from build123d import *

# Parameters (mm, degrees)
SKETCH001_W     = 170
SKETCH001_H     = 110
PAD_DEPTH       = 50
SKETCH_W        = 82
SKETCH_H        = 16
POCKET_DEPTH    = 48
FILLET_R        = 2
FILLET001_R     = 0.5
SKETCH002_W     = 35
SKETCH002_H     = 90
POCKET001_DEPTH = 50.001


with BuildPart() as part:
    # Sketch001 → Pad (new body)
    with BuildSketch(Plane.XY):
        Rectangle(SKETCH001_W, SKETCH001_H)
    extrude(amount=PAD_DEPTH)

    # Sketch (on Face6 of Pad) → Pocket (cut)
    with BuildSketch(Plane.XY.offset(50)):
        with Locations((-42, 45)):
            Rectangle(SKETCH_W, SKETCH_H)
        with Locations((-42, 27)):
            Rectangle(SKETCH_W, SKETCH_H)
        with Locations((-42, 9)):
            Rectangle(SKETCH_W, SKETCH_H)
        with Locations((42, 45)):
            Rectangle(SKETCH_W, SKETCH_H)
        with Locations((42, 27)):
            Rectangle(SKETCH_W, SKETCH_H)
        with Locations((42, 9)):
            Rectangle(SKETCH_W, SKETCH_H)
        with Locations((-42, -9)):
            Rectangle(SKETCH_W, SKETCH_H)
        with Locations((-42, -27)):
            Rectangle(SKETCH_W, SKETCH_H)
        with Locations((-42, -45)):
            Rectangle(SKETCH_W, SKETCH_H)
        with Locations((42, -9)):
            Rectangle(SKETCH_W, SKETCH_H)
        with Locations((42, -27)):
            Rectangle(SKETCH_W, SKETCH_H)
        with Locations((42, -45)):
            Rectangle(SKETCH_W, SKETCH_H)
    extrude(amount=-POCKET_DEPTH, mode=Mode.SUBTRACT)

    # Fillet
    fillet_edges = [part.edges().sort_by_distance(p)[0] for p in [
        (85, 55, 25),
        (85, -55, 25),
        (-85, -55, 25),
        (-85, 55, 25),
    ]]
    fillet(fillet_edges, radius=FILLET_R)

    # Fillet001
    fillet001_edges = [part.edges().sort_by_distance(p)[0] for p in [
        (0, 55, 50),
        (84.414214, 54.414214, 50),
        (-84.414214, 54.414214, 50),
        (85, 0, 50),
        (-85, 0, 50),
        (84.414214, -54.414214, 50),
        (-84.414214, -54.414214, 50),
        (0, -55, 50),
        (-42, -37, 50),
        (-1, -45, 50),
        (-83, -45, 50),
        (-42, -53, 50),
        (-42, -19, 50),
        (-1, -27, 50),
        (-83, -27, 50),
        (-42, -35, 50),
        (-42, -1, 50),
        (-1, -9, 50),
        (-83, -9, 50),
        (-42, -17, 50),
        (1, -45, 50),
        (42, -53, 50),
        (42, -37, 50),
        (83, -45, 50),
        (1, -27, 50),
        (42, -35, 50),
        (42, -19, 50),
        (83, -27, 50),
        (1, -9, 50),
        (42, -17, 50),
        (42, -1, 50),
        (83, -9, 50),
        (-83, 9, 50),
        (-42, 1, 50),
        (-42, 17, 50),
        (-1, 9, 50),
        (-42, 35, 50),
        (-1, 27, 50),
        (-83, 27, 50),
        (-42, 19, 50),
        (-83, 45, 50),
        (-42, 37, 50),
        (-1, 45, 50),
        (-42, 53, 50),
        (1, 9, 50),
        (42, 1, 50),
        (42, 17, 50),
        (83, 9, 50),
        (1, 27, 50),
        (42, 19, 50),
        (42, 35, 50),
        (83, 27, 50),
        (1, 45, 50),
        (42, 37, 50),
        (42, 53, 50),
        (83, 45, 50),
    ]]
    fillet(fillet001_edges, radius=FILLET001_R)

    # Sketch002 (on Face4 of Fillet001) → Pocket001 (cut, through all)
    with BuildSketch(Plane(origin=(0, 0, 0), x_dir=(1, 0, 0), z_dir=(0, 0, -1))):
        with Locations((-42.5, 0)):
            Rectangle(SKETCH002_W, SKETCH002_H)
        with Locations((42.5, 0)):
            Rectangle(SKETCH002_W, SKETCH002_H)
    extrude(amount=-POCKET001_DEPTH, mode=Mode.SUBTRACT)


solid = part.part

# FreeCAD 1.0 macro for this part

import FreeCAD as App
import Part
import Sketcher

V = App.Vector


def edges_at(feature, points):
    """Names of the edges that pass closest to the given points."""
    edges = feature.Shape.Edges
    near = lambda p: min(range(len(edges)), key=lambda i: edges[i].distToShape(Part.Vertex(*p))[0])
    return sorted({f"Edge{near(p) + 1}" for p in points})

doc = App.newDocument("Part")
body = doc.addObject("PartDesign::Body", "Body")

sketch1 = doc.addObject("Sketcher::SketchObject", "Sketch")
body.addObject(sketch1)
sketch1.AttachmentSupport = (doc.XY_Plane, [""])
sketch1.MapMode = "FlatFace"
sketch1.addGeometry([
    Part.LineSegment(V(-85, 55, 0), V(-85, -55, 0)),
    Part.LineSegment(V(-85, -55, 0), V(85, -55, 0)),
    Part.LineSegment(V(85, -55, 0), V(85, 55, 0)),
    Part.LineSegment(V(85, 55, 0), V(-85, 55, 0)),
], False)
sketch1.addConstraint([
    Sketcher.Constraint("Coincident", 0, 2, 1, 1),
    Sketcher.Constraint("Coincident", 1, 2, 2, 1),
    Sketcher.Constraint("Coincident", 2, 2, 3, 1),
    Sketcher.Constraint("Coincident", 3, 2, 0, 1),
    Sketcher.Constraint("Vertical", 0),
    Sketcher.Constraint("Horizontal", 1),
    Sketcher.Constraint("Vertical", 2),
    Sketcher.Constraint("Horizontal", 3),
    Sketcher.Constraint("Symmetric", 0, 2, 2, 2, -1, 1),
    Sketcher.Constraint("DistanceX", 1, 1, 1, 2, 170.0),
    Sketcher.Constraint("DistanceY", 0, 2, 0, 1, 110.0),
])
pad1 = doc.addObject("PartDesign::Pad", "Pad")
body.addObject(pad1)
pad1.Profile = sketch1
pad1.Length = 50

sketch2 = doc.addObject("Sketcher::SketchObject", "Sketch001")
body.addObject(sketch2)
sketch2.AttachmentSupport = (doc.XY_Plane, [""])
sketch2.MapMode = "FlatFace"
sketch2.AttachmentOffset = App.Placement(V(0, 0, 50), App.Rotation())
sketch2.addGeometry([
    Part.LineSegment(V(-83, 53, 0), V(-83, 37, 0)),
    Part.LineSegment(V(-83, 37, 0), V(-1, 37, 0)),
    Part.LineSegment(V(-1, 37, 0), V(-1, 53, 0)),
    Part.LineSegment(V(-1, 53, 0), V(-83, 53, 0)),
    Part.LineSegment(V(-83, 35, 0), V(-83, 19, 0)),
    Part.LineSegment(V(-83, 19, 0), V(-1, 19, 0)),
    Part.LineSegment(V(-1, 19, 0), V(-1, 35, 0)),
    Part.LineSegment(V(-1, 35, 0), V(-83, 35, 0)),
    Part.LineSegment(V(-83, 17, 0), V(-83, 1, 0)),
    Part.LineSegment(V(-83, 1, 0), V(-1, 1, 0)),
    Part.LineSegment(V(-1, 1, 0), V(-1, 17, 0)),
    Part.LineSegment(V(-1, 17, 0), V(-83, 17, 0)),
    Part.LineSegment(V(1, 53, 0), V(1, 37, 0)),
    Part.LineSegment(V(1, 37, 0), V(83, 37, 0)),
    Part.LineSegment(V(83, 37, 0), V(83, 53, 0)),
    Part.LineSegment(V(83, 53, 0), V(1, 53, 0)),
    Part.LineSegment(V(1, 35, 0), V(1, 19, 0)),
    Part.LineSegment(V(1, 19, 0), V(83, 19, 0)),
    Part.LineSegment(V(83, 19, 0), V(83, 35, 0)),
    Part.LineSegment(V(83, 35, 0), V(1, 35, 0)),
    Part.LineSegment(V(1, 17, 0), V(1, 1, 0)),
    Part.LineSegment(V(1, 1, 0), V(83, 1, 0)),
    Part.LineSegment(V(83, 1, 0), V(83, 17, 0)),
    Part.LineSegment(V(83, 17, 0), V(1, 17, 0)),
    Part.LineSegment(V(-83, -1, 0), V(-83, -17, 0)),
    Part.LineSegment(V(-83, -17, 0), V(-1, -17, 0)),
    Part.LineSegment(V(-1, -17, 0), V(-1, -1, 0)),
    Part.LineSegment(V(-1, -1, 0), V(-83, -1, 0)),
    Part.LineSegment(V(-83, -19, 0), V(-83, -35, 0)),
    Part.LineSegment(V(-83, -35, 0), V(-1, -35, 0)),
    Part.LineSegment(V(-1, -35, 0), V(-1, -19, 0)),
    Part.LineSegment(V(-1, -19, 0), V(-83, -19, 0)),
    Part.LineSegment(V(-83, -37, 0), V(-83, -53, 0)),
    Part.LineSegment(V(-83, -53, 0), V(-1, -53, 0)),
    Part.LineSegment(V(-1, -53, 0), V(-1, -37, 0)),
    Part.LineSegment(V(-1, -37, 0), V(-83, -37, 0)),
    Part.LineSegment(V(1, -1, 0), V(1, -17, 0)),
    Part.LineSegment(V(1, -17, 0), V(83, -17, 0)),
    Part.LineSegment(V(83, -17, 0), V(83, -1, 0)),
    Part.LineSegment(V(83, -1, 0), V(1, -1, 0)),
    Part.LineSegment(V(1, -19, 0), V(1, -35, 0)),
    Part.LineSegment(V(1, -35, 0), V(83, -35, 0)),
    Part.LineSegment(V(83, -35, 0), V(83, -19, 0)),
    Part.LineSegment(V(83, -19, 0), V(1, -19, 0)),
    Part.LineSegment(V(1, -37, 0), V(1, -53, 0)),
    Part.LineSegment(V(1, -53, 0), V(83, -53, 0)),
    Part.LineSegment(V(83, -53, 0), V(83, -37, 0)),
    Part.LineSegment(V(83, -37, 0), V(1, -37, 0)),
], False)
sketch2.addConstraint([
    Sketcher.Constraint("Coincident", 0, 2, 1, 1),
    Sketcher.Constraint("Coincident", 1, 2, 2, 1),
    Sketcher.Constraint("Coincident", 2, 2, 3, 1),
    Sketcher.Constraint("Coincident", 3, 2, 0, 1),
    Sketcher.Constraint("Coincident", 4, 2, 5, 1),
    Sketcher.Constraint("Coincident", 5, 2, 6, 1),
    Sketcher.Constraint("Coincident", 6, 2, 7, 1),
    Sketcher.Constraint("Coincident", 7, 2, 4, 1),
    Sketcher.Constraint("Coincident", 8, 2, 9, 1),
    Sketcher.Constraint("Coincident", 9, 2, 10, 1),
    Sketcher.Constraint("Coincident", 10, 2, 11, 1),
    Sketcher.Constraint("Coincident", 11, 2, 8, 1),
    Sketcher.Constraint("Coincident", 12, 2, 13, 1),
    Sketcher.Constraint("Coincident", 13, 2, 14, 1),
    Sketcher.Constraint("Coincident", 14, 2, 15, 1),
    Sketcher.Constraint("Coincident", 15, 2, 12, 1),
    Sketcher.Constraint("Coincident", 16, 2, 17, 1),
    Sketcher.Constraint("Coincident", 17, 2, 18, 1),
    Sketcher.Constraint("Coincident", 18, 2, 19, 1),
    Sketcher.Constraint("Coincident", 19, 2, 16, 1),
    Sketcher.Constraint("Coincident", 20, 2, 21, 1),
    Sketcher.Constraint("Coincident", 21, 2, 22, 1),
    Sketcher.Constraint("Coincident", 22, 2, 23, 1),
    Sketcher.Constraint("Coincident", 23, 2, 20, 1),
    Sketcher.Constraint("Coincident", 24, 2, 25, 1),
    Sketcher.Constraint("Coincident", 25, 2, 26, 1),
    Sketcher.Constraint("Coincident", 26, 2, 27, 1),
    Sketcher.Constraint("Coincident", 27, 2, 24, 1),
    Sketcher.Constraint("Coincident", 28, 2, 29, 1),
    Sketcher.Constraint("Coincident", 29, 2, 30, 1),
    Sketcher.Constraint("Coincident", 30, 2, 31, 1),
    Sketcher.Constraint("Coincident", 31, 2, 28, 1),
    Sketcher.Constraint("Coincident", 32, 2, 33, 1),
    Sketcher.Constraint("Coincident", 33, 2, 34, 1),
    Sketcher.Constraint("Coincident", 34, 2, 35, 1),
    Sketcher.Constraint("Coincident", 35, 2, 32, 1),
    Sketcher.Constraint("Coincident", 36, 2, 37, 1),
    Sketcher.Constraint("Coincident", 37, 2, 38, 1),
    Sketcher.Constraint("Coincident", 38, 2, 39, 1),
    Sketcher.Constraint("Coincident", 39, 2, 36, 1),
    Sketcher.Constraint("Coincident", 40, 2, 41, 1),
    Sketcher.Constraint("Coincident", 41, 2, 42, 1),
    Sketcher.Constraint("Coincident", 42, 2, 43, 1),
    Sketcher.Constraint("Coincident", 43, 2, 40, 1),
    Sketcher.Constraint("Coincident", 44, 2, 45, 1),
    Sketcher.Constraint("Coincident", 45, 2, 46, 1),
    Sketcher.Constraint("Coincident", 46, 2, 47, 1),
    Sketcher.Constraint("Coincident", 47, 2, 44, 1),
    Sketcher.Constraint("Vertical", 0),
    Sketcher.Constraint("Horizontal", 1),
    Sketcher.Constraint("Vertical", 2),
    Sketcher.Constraint("Horizontal", 3),
    Sketcher.Constraint("Vertical", 4),
    Sketcher.Constraint("Horizontal", 5),
    Sketcher.Constraint("Vertical", 6),
    Sketcher.Constraint("Horizontal", 7),
    Sketcher.Constraint("Vertical", 8),
    Sketcher.Constraint("Horizontal", 9),
    Sketcher.Constraint("Vertical", 10),
    Sketcher.Constraint("Horizontal", 11),
    Sketcher.Constraint("Vertical", 12),
    Sketcher.Constraint("Horizontal", 13),
    Sketcher.Constraint("Vertical", 14),
    Sketcher.Constraint("Horizontal", 15),
    Sketcher.Constraint("Vertical", 16),
    Sketcher.Constraint("Horizontal", 17),
    Sketcher.Constraint("Vertical", 18),
    Sketcher.Constraint("Horizontal", 19),
    Sketcher.Constraint("Vertical", 20),
    Sketcher.Constraint("Horizontal", 21),
    Sketcher.Constraint("Vertical", 22),
    Sketcher.Constraint("Horizontal", 23),
    Sketcher.Constraint("Vertical", 24),
    Sketcher.Constraint("Horizontal", 25),
    Sketcher.Constraint("Vertical", 26),
    Sketcher.Constraint("Horizontal", 27),
    Sketcher.Constraint("Vertical", 28),
    Sketcher.Constraint("Horizontal", 29),
    Sketcher.Constraint("Vertical", 30),
    Sketcher.Constraint("Horizontal", 31),
    Sketcher.Constraint("Vertical", 32),
    Sketcher.Constraint("Horizontal", 33),
    Sketcher.Constraint("Vertical", 34),
    Sketcher.Constraint("Horizontal", 35),
    Sketcher.Constraint("Vertical", 36),
    Sketcher.Constraint("Horizontal", 37),
    Sketcher.Constraint("Vertical", 38),
    Sketcher.Constraint("Horizontal", 39),
    Sketcher.Constraint("Vertical", 40),
    Sketcher.Constraint("Horizontal", 41),
    Sketcher.Constraint("Vertical", 42),
    Sketcher.Constraint("Horizontal", 43),
    Sketcher.Constraint("Vertical", 44),
    Sketcher.Constraint("Horizontal", 45),
    Sketcher.Constraint("Vertical", 46),
    Sketcher.Constraint("Horizontal", 47),
    Sketcher.Constraint("Symmetric", 22, 2, 24, 2, -1, 1),
    Sketcher.Constraint("Symmetric", 20, 2, 26, 2, -1, 1),
    Sketcher.Constraint("Symmetric", 18, 2, 28, 2, -1, 1),
    Sketcher.Constraint("Symmetric", 16, 2, 30, 2, -1, 1),
    Sketcher.Constraint("Symmetric", 14, 2, 32, 2, -1, 1),
    Sketcher.Constraint("Symmetric", 12, 2, 34, 2, -1, 1),
    Sketcher.Constraint("Symmetric", 10, 2, 36, 2, -1, 1),
    Sketcher.Constraint("Symmetric", 8, 2, 38, 2, -1, 1),
    Sketcher.Constraint("Symmetric", 6, 2, 40, 2, -1, 1),
    Sketcher.Constraint("Symmetric", 4, 2, 42, 2, -1, 1),
    Sketcher.Constraint("Symmetric", 2, 2, 44, 2, -1, 1),
    Sketcher.Constraint("Symmetric", 0, 2, 46, 2, -1, 1),
    Sketcher.Constraint("Symmetric", 1, 2, 12, 2, -2),
    Sketcher.Constraint("Symmetric", 3, 2, 14, 2, -2),
    Sketcher.Constraint("Symmetric", 5, 2, 16, 2, -2),
    Sketcher.Constraint("Symmetric", 7, 2, 18, 2, -2),
    Sketcher.Constraint("Symmetric", 9, 2, 20, 2, -2),
    Sketcher.Constraint("Symmetric", 11, 2, 22, 2, -2),
    Sketcher.Constraint("Vertical", 3, 2, 4, 2),
    Sketcher.Constraint("Vertical", 2, 2, 5, 2),
    Sketcher.Constraint("Vertical", 7, 2, 8, 2),
    Sketcher.Constraint("Vertical", 6, 2, 9, 2),
    Sketcher.Constraint("Equal", 2, 4),
    Sketcher.Constraint("Equal", 6, 8),
    Sketcher.Constraint("DistanceX", 1, 1, 1, 2, 82.0),
    Sketcher.Constraint("DistanceY", 0, 2, 0, 1, 16.0),
    Sketcher.Constraint("DistanceX", 0, 2, -1, 1, 83.0),
    Sketcher.Constraint("DistanceY", -1, 1, 0, 2, 37.0),
    Sketcher.Constraint("DistanceY", -1, 1, 4, 2, 19.0),
    Sketcher.Constraint("DistanceY", -1, 1, 8, 2, 1.0),
])
pocket1 = doc.addObject("PartDesign::Pocket", "Pocket")
body.addObject(pocket1)
pocket1.Profile = sketch2
pocket1.Length = 48
doc.recompute()

fillet = doc.addObject("PartDesign::Fillet", "Fillet")
body.addObject(fillet)
fillet.Base = (pocket1, edges_at(pocket1, [
    (85, 55, 25),
    (85, -55, 25),
    (-85, -55, 25),
    (-85, 55, 25),
]))
fillet.Radius = 2
doc.recompute()

fillet2 = doc.addObject("PartDesign::Fillet", "Fillet001")
body.addObject(fillet2)
fillet2.Base = (fillet, edges_at(fillet, [
    (0, 55, 50),
    (84.414, 54.414, 50),
    (-84.414, 54.414, 50),
    (85, 0, 50),
    (-85, 0, 50),
    (84.414, -54.414, 50),
    (-84.414, -54.414, 50),
    (0, -55, 50),
    (-42, -37, 50),
    (-1, -45, 50),
    (-83, -45, 50),
    (-42, -53, 50),
    (-42, -19, 50),
    (-1, -27, 50),
    (-83, -27, 50),
    (-42, -35, 50),
    (-42, -1, 50),
    (-1, -9, 50),
    (-83, -9, 50),
    (-42, -17, 50),
    (1, -45, 50),
    (42, -53, 50),
    (42, -37, 50),
    (83, -45, 50),
    (1, -27, 50),
    (42, -35, 50),
    (42, -19, 50),
    (83, -27, 50),
    (1, -9, 50),
    (42, -17, 50),
    (42, -1, 50),
    (83, -9, 50),
    (-83, 9, 50),
    (-42, 1, 50),
    (-42, 17, 50),
    (-1, 9, 50),
    (-42, 35, 50),
    (-1, 27, 50),
    (-83, 27, 50),
    (-42, 19, 50),
    (-83, 45, 50),
    (-42, 37, 50),
    (-1, 45, 50),
    (-42, 53, 50),
    (1, 9, 50),
    (42, 1, 50),
    (42, 17, 50),
    (83, 9, 50),
    (1, 27, 50),
    (42, 19, 50),
    (42, 35, 50),
    (83, 27, 50),
    (1, 45, 50),
    (42, 37, 50),
    (42, 53, 50),
    (83, 45, 50),
]))
fillet2.Radius = 0.5

sketch3 = doc.addObject("Sketcher::SketchObject", "Sketch002")
body.addObject(sketch3)
sketch3.AttachmentSupport = (doc.XY_Plane, [""])
sketch3.MapMode = "FlatFace"
sketch3.addGeometry([
    Part.LineSegment(V(-60, -45, 0), V(-60, 45, 0)),
    Part.LineSegment(V(-60, 45, 0), V(-25, 45, 0)),
    Part.LineSegment(V(-25, 45, 0), V(-25, -45, 0)),
    Part.LineSegment(V(-25, -45, 0), V(-60, -45, 0)),
    Part.LineSegment(V(25, -45, 0), V(25, 45, 0)),
    Part.LineSegment(V(25, 45, 0), V(60, 45, 0)),
    Part.LineSegment(V(60, 45, 0), V(60, -45, 0)),
    Part.LineSegment(V(60, -45, 0), V(25, -45, 0)),
], False)
sketch3.addConstraint([
    Sketcher.Constraint("Coincident", 0, 2, 1, 1),
    Sketcher.Constraint("Coincident", 1, 2, 2, 1),
    Sketcher.Constraint("Coincident", 2, 2, 3, 1),
    Sketcher.Constraint("Coincident", 3, 2, 0, 1),
    Sketcher.Constraint("Coincident", 4, 2, 5, 1),
    Sketcher.Constraint("Coincident", 5, 2, 6, 1),
    Sketcher.Constraint("Coincident", 6, 2, 7, 1),
    Sketcher.Constraint("Coincident", 7, 2, 4, 1),
    Sketcher.Constraint("Vertical", 0),
    Sketcher.Constraint("Horizontal", 1),
    Sketcher.Constraint("Vertical", 2),
    Sketcher.Constraint("Horizontal", 3),
    Sketcher.Constraint("Vertical", 4),
    Sketcher.Constraint("Horizontal", 5),
    Sketcher.Constraint("Vertical", 6),
    Sketcher.Constraint("Horizontal", 7),
    Sketcher.Constraint("Symmetric", 2, 2, 4, 2, -1, 1),
    Sketcher.Constraint("Symmetric", 0, 2, 6, 2, -1, 1),
    Sketcher.Constraint("Horizontal", 1, 2, 4, 2),
    Sketcher.Constraint("DistanceX", 1, 1, 1, 2, 35.0),
    Sketcher.Constraint("DistanceY", 0, 1, 0, 2, 90.0),
    Sketcher.Constraint("DistanceX", 0, 2, -1, 1, 60.0),
])
pocket2 = doc.addObject("PartDesign::Pocket", "Pocket001")
body.addObject(pocket2)
pocket2.Profile = sketch3
pocket2.Type = "ThroughAll"
pocket2.Reversed = True

doc.recompute()
